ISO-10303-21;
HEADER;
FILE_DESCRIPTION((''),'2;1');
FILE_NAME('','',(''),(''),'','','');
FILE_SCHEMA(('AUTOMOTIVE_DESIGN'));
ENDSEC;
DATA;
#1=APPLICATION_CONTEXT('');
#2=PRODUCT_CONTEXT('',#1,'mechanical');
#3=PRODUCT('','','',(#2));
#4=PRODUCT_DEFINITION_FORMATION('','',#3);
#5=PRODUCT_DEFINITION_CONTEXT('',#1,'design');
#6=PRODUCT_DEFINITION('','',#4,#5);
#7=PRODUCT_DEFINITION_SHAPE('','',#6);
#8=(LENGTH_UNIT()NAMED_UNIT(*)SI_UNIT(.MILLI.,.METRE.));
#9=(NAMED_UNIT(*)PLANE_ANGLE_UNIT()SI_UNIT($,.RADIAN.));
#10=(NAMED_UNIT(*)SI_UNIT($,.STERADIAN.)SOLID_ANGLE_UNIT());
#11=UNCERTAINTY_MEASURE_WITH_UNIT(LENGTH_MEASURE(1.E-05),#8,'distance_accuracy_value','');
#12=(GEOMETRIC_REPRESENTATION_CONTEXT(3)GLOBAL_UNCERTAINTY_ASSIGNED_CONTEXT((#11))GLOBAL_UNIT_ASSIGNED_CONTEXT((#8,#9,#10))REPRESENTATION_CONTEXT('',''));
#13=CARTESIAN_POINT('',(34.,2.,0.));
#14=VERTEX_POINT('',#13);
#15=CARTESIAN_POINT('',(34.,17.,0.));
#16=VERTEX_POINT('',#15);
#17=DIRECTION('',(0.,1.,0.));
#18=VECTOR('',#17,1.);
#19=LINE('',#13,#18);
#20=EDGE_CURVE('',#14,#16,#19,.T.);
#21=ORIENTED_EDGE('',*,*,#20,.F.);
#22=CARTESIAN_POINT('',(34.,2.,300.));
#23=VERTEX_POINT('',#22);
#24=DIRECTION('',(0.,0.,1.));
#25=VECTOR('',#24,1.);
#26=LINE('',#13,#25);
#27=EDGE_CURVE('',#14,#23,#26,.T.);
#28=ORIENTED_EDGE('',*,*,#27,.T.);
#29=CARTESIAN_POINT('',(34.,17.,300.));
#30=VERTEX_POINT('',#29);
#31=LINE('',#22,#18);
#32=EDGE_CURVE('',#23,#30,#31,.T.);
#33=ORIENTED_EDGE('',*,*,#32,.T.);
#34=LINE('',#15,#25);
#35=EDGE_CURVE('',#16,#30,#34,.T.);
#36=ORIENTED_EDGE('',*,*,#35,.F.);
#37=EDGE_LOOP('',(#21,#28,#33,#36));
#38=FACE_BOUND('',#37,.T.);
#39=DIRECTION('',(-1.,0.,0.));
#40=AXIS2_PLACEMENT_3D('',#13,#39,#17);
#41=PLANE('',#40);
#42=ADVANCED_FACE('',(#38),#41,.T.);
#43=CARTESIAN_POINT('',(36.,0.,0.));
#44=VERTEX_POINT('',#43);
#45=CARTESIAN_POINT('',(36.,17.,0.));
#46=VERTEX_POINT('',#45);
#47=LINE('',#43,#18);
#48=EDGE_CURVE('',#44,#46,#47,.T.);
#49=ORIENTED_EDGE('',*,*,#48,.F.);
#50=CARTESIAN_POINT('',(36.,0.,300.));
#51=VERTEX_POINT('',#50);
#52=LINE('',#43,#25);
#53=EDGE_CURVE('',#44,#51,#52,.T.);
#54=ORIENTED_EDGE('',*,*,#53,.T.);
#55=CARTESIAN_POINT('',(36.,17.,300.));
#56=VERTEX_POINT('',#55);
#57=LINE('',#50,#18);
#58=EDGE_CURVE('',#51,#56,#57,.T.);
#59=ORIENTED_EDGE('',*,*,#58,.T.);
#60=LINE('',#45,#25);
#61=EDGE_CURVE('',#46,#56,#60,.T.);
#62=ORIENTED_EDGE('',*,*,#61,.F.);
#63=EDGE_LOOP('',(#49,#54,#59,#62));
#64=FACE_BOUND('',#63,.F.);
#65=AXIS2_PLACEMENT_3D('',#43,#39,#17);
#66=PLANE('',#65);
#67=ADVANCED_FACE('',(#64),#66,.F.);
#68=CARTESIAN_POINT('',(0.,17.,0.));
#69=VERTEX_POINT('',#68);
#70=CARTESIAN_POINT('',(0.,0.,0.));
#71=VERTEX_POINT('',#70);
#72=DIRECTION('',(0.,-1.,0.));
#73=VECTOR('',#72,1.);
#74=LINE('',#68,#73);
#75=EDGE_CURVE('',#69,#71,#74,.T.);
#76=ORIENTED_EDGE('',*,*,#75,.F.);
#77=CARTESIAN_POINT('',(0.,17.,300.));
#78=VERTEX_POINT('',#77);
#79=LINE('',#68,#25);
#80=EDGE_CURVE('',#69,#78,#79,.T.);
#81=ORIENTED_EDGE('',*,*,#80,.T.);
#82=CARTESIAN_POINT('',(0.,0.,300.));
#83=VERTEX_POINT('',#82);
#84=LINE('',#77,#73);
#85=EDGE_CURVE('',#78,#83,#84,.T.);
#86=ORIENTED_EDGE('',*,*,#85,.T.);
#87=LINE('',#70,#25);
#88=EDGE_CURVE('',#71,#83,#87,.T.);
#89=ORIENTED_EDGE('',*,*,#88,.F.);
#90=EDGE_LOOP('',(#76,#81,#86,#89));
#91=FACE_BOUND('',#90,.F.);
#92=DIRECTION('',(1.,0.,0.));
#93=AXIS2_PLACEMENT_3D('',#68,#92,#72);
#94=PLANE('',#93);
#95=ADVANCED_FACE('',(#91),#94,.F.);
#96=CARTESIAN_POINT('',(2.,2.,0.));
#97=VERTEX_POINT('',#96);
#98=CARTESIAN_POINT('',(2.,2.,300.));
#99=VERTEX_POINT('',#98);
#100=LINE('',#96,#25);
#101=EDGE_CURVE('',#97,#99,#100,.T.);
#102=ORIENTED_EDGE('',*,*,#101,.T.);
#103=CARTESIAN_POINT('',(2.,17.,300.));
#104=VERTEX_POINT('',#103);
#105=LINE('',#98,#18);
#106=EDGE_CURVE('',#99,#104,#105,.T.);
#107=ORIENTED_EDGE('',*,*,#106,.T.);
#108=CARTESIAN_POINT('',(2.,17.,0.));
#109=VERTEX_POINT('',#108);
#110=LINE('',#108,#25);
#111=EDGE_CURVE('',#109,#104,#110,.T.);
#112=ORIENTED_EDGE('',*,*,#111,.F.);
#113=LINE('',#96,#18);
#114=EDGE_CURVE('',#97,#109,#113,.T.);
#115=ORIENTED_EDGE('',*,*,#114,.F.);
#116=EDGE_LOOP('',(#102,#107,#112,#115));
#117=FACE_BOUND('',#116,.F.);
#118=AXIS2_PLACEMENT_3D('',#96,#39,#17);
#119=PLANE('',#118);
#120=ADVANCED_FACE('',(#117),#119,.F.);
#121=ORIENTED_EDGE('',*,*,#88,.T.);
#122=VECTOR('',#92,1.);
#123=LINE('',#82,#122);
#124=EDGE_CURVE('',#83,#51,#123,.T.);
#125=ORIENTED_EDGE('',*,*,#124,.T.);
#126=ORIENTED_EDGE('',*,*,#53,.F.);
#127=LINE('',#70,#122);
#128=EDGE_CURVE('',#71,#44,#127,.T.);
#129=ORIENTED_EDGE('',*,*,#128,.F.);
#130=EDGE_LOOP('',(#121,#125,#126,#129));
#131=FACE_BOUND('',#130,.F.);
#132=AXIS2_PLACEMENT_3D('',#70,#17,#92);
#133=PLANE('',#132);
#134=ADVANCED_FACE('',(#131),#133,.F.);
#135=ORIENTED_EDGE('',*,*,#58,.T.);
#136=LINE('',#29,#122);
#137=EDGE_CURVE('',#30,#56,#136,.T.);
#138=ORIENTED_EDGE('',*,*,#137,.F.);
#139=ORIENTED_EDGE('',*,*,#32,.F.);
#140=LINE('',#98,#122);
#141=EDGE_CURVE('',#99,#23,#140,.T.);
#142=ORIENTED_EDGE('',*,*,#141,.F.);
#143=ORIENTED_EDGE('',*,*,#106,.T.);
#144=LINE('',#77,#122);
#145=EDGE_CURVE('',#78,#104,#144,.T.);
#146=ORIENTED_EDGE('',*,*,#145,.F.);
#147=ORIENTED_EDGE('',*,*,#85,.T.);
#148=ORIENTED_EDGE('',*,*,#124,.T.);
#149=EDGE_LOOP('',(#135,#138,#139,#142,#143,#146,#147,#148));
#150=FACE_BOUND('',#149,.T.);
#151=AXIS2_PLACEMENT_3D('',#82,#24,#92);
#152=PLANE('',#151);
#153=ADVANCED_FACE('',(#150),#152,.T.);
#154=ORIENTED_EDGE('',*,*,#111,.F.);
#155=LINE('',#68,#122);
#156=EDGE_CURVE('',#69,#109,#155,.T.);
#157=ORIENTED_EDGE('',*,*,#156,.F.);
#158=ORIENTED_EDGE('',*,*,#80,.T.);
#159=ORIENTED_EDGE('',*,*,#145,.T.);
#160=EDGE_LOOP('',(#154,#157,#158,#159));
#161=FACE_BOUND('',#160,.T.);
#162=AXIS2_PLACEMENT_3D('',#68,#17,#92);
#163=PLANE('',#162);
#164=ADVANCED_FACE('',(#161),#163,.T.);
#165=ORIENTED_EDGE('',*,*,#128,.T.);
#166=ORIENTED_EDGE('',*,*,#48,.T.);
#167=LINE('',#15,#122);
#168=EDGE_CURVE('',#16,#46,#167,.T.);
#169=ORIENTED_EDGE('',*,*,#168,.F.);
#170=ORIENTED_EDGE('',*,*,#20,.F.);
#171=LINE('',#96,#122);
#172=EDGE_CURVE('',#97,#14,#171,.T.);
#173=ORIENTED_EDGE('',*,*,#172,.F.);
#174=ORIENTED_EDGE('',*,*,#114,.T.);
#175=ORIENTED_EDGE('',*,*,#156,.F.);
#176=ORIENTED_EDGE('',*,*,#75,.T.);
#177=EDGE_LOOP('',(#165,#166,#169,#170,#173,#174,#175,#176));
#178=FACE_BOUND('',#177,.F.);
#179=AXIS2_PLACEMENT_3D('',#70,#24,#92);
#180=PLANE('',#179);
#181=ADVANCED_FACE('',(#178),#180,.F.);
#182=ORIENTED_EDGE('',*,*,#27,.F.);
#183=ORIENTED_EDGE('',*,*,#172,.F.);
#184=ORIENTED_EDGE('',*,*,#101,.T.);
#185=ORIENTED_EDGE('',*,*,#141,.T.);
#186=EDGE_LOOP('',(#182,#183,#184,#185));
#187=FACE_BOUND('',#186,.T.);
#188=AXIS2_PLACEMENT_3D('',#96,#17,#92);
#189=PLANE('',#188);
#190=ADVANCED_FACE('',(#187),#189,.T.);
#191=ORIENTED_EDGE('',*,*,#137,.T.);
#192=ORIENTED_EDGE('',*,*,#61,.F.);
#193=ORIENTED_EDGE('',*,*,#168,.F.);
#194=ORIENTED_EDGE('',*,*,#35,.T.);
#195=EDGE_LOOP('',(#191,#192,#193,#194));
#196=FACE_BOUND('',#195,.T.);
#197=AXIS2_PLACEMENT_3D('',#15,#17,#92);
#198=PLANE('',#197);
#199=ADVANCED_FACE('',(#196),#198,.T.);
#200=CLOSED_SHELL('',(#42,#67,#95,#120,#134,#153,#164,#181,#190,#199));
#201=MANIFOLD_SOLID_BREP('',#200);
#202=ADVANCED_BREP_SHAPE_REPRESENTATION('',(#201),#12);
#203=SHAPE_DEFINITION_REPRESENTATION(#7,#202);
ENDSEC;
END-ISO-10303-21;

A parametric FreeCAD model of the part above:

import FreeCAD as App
import Part
import Sketcher

doc = App.newDocument("Part")
body = doc.addObject("PartDesign::Body", "Body")

# Sketch on XY plane
sketch1 = body.newObject("Sketcher::SketchObject", "Sketch")
sketch1.AttachmentSupport = (doc.getObject("XY_Plane"), [""])
sketch1.MapMode = "FlatFace"
sketch1.addGeometry(Part.LineSegment(App.Vector(34, 2, 0), App.Vector(2, 2, 0)), False)
sketch1.addGeometry(Part.LineSegment(App.Vector(2, 2, 0), App.Vector(2, 17, 0)), False)
sketch1.addGeometry(Part.LineSegment(App.Vector(2, 17, 0), App.Vector(0, 17, 0)), False)
sketch1.addGeometry(Part.LineSegment(App.Vector(0, 17, 0), App.Vector(0, 0, 0)), False)
sketch1.addGeometry(Part.LineSegment(App.Vector(0, 0, 0), App.Vector(36, 0, 0)), False)
sketch1.addGeometry(Part.LineSegment(App.Vector(36, 0, 0), App.Vector(36, 17, 0)), False)
sketch1.addGeometry(Part.LineSegment(App.Vector(36, 17, 0), App.Vector(34, 17, 0)), False)
sketch1.addGeometry(Part.LineSegment(App.Vector(34, 17, 0), App.Vector(34, 2, 0)), False)
sketch1.addConstraint(Sketcher.Constraint("Coincident", 0, 2, 1, 1))
sketch1.addConstraint(Sketcher.Constraint("Coincident", 1, 2, 2, 1))
sketch1.addConstraint(Sketcher.Constraint("Coincident", 2, 2, 3, 1))
sketch1.addConstraint(Sketcher.Constraint("Coincident", 3, 2, 4, 1))
sketch1.addConstraint(Sketcher.Constraint("Coincident", 4, 2, 5, 1))
sketch1.addConstraint(Sketcher.Constraint("Coincident", 5, 2, 6, 1))
sketch1.addConstraint(Sketcher.Constraint("Coincident", 6, 2, 7, 1))
sketch1.addConstraint(Sketcher.Constraint("Coincident", 7, 2, 0, 1))
sketch1.addConstraint(Sketcher.Constraint("Horizontal", 0))
sketch1.addConstraint(Sketcher.Constraint("Vertical", 1))
sketch1.addConstraint(Sketcher.Constraint("Horizontal", 2))
sketch1.addConstraint(Sketcher.Constraint("Vertical", 3))
sketch1.addConstraint(Sketcher.Constraint("Horizontal", 4))
sketch1.addConstraint(Sketcher.Constraint("Vertical", 5))
sketch1.addConstraint(Sketcher.Constraint("Horizontal", 6))
sketch1.addConstraint(Sketcher.Constraint("Vertical", 7))
sketch1.addConstraint(Sketcher.Constraint("Coincident", 3, 2, -1, 1))
sketch1.addConstraint(Sketcher.Constraint("Horizontal", 2, 2, 5, 2))
sketch1.addConstraint(Sketcher.Constraint("Equal", 2, 6))
sketch1.addConstraint(Sketcher.Constraint("DistanceX", 0, 2, 0, 1, 32.0))
sketch1.addConstraint(Sketcher.Constraint("DistanceX", 2, 2, 2, 1, 2.0))
sketch1.addConstraint(Sketcher.Constraint("DistanceY", 1, 1, 1, 2, 15.0))
sketch1.addConstraint(Sketcher.Constraint("DistanceY", -1, 1, 0, 2, 2.0))
pad1 = body.newObject("PartDesign::Pad", "Pad")
pad1.Profile = sketch1
pad1.Length = 300

doc.recompute()
